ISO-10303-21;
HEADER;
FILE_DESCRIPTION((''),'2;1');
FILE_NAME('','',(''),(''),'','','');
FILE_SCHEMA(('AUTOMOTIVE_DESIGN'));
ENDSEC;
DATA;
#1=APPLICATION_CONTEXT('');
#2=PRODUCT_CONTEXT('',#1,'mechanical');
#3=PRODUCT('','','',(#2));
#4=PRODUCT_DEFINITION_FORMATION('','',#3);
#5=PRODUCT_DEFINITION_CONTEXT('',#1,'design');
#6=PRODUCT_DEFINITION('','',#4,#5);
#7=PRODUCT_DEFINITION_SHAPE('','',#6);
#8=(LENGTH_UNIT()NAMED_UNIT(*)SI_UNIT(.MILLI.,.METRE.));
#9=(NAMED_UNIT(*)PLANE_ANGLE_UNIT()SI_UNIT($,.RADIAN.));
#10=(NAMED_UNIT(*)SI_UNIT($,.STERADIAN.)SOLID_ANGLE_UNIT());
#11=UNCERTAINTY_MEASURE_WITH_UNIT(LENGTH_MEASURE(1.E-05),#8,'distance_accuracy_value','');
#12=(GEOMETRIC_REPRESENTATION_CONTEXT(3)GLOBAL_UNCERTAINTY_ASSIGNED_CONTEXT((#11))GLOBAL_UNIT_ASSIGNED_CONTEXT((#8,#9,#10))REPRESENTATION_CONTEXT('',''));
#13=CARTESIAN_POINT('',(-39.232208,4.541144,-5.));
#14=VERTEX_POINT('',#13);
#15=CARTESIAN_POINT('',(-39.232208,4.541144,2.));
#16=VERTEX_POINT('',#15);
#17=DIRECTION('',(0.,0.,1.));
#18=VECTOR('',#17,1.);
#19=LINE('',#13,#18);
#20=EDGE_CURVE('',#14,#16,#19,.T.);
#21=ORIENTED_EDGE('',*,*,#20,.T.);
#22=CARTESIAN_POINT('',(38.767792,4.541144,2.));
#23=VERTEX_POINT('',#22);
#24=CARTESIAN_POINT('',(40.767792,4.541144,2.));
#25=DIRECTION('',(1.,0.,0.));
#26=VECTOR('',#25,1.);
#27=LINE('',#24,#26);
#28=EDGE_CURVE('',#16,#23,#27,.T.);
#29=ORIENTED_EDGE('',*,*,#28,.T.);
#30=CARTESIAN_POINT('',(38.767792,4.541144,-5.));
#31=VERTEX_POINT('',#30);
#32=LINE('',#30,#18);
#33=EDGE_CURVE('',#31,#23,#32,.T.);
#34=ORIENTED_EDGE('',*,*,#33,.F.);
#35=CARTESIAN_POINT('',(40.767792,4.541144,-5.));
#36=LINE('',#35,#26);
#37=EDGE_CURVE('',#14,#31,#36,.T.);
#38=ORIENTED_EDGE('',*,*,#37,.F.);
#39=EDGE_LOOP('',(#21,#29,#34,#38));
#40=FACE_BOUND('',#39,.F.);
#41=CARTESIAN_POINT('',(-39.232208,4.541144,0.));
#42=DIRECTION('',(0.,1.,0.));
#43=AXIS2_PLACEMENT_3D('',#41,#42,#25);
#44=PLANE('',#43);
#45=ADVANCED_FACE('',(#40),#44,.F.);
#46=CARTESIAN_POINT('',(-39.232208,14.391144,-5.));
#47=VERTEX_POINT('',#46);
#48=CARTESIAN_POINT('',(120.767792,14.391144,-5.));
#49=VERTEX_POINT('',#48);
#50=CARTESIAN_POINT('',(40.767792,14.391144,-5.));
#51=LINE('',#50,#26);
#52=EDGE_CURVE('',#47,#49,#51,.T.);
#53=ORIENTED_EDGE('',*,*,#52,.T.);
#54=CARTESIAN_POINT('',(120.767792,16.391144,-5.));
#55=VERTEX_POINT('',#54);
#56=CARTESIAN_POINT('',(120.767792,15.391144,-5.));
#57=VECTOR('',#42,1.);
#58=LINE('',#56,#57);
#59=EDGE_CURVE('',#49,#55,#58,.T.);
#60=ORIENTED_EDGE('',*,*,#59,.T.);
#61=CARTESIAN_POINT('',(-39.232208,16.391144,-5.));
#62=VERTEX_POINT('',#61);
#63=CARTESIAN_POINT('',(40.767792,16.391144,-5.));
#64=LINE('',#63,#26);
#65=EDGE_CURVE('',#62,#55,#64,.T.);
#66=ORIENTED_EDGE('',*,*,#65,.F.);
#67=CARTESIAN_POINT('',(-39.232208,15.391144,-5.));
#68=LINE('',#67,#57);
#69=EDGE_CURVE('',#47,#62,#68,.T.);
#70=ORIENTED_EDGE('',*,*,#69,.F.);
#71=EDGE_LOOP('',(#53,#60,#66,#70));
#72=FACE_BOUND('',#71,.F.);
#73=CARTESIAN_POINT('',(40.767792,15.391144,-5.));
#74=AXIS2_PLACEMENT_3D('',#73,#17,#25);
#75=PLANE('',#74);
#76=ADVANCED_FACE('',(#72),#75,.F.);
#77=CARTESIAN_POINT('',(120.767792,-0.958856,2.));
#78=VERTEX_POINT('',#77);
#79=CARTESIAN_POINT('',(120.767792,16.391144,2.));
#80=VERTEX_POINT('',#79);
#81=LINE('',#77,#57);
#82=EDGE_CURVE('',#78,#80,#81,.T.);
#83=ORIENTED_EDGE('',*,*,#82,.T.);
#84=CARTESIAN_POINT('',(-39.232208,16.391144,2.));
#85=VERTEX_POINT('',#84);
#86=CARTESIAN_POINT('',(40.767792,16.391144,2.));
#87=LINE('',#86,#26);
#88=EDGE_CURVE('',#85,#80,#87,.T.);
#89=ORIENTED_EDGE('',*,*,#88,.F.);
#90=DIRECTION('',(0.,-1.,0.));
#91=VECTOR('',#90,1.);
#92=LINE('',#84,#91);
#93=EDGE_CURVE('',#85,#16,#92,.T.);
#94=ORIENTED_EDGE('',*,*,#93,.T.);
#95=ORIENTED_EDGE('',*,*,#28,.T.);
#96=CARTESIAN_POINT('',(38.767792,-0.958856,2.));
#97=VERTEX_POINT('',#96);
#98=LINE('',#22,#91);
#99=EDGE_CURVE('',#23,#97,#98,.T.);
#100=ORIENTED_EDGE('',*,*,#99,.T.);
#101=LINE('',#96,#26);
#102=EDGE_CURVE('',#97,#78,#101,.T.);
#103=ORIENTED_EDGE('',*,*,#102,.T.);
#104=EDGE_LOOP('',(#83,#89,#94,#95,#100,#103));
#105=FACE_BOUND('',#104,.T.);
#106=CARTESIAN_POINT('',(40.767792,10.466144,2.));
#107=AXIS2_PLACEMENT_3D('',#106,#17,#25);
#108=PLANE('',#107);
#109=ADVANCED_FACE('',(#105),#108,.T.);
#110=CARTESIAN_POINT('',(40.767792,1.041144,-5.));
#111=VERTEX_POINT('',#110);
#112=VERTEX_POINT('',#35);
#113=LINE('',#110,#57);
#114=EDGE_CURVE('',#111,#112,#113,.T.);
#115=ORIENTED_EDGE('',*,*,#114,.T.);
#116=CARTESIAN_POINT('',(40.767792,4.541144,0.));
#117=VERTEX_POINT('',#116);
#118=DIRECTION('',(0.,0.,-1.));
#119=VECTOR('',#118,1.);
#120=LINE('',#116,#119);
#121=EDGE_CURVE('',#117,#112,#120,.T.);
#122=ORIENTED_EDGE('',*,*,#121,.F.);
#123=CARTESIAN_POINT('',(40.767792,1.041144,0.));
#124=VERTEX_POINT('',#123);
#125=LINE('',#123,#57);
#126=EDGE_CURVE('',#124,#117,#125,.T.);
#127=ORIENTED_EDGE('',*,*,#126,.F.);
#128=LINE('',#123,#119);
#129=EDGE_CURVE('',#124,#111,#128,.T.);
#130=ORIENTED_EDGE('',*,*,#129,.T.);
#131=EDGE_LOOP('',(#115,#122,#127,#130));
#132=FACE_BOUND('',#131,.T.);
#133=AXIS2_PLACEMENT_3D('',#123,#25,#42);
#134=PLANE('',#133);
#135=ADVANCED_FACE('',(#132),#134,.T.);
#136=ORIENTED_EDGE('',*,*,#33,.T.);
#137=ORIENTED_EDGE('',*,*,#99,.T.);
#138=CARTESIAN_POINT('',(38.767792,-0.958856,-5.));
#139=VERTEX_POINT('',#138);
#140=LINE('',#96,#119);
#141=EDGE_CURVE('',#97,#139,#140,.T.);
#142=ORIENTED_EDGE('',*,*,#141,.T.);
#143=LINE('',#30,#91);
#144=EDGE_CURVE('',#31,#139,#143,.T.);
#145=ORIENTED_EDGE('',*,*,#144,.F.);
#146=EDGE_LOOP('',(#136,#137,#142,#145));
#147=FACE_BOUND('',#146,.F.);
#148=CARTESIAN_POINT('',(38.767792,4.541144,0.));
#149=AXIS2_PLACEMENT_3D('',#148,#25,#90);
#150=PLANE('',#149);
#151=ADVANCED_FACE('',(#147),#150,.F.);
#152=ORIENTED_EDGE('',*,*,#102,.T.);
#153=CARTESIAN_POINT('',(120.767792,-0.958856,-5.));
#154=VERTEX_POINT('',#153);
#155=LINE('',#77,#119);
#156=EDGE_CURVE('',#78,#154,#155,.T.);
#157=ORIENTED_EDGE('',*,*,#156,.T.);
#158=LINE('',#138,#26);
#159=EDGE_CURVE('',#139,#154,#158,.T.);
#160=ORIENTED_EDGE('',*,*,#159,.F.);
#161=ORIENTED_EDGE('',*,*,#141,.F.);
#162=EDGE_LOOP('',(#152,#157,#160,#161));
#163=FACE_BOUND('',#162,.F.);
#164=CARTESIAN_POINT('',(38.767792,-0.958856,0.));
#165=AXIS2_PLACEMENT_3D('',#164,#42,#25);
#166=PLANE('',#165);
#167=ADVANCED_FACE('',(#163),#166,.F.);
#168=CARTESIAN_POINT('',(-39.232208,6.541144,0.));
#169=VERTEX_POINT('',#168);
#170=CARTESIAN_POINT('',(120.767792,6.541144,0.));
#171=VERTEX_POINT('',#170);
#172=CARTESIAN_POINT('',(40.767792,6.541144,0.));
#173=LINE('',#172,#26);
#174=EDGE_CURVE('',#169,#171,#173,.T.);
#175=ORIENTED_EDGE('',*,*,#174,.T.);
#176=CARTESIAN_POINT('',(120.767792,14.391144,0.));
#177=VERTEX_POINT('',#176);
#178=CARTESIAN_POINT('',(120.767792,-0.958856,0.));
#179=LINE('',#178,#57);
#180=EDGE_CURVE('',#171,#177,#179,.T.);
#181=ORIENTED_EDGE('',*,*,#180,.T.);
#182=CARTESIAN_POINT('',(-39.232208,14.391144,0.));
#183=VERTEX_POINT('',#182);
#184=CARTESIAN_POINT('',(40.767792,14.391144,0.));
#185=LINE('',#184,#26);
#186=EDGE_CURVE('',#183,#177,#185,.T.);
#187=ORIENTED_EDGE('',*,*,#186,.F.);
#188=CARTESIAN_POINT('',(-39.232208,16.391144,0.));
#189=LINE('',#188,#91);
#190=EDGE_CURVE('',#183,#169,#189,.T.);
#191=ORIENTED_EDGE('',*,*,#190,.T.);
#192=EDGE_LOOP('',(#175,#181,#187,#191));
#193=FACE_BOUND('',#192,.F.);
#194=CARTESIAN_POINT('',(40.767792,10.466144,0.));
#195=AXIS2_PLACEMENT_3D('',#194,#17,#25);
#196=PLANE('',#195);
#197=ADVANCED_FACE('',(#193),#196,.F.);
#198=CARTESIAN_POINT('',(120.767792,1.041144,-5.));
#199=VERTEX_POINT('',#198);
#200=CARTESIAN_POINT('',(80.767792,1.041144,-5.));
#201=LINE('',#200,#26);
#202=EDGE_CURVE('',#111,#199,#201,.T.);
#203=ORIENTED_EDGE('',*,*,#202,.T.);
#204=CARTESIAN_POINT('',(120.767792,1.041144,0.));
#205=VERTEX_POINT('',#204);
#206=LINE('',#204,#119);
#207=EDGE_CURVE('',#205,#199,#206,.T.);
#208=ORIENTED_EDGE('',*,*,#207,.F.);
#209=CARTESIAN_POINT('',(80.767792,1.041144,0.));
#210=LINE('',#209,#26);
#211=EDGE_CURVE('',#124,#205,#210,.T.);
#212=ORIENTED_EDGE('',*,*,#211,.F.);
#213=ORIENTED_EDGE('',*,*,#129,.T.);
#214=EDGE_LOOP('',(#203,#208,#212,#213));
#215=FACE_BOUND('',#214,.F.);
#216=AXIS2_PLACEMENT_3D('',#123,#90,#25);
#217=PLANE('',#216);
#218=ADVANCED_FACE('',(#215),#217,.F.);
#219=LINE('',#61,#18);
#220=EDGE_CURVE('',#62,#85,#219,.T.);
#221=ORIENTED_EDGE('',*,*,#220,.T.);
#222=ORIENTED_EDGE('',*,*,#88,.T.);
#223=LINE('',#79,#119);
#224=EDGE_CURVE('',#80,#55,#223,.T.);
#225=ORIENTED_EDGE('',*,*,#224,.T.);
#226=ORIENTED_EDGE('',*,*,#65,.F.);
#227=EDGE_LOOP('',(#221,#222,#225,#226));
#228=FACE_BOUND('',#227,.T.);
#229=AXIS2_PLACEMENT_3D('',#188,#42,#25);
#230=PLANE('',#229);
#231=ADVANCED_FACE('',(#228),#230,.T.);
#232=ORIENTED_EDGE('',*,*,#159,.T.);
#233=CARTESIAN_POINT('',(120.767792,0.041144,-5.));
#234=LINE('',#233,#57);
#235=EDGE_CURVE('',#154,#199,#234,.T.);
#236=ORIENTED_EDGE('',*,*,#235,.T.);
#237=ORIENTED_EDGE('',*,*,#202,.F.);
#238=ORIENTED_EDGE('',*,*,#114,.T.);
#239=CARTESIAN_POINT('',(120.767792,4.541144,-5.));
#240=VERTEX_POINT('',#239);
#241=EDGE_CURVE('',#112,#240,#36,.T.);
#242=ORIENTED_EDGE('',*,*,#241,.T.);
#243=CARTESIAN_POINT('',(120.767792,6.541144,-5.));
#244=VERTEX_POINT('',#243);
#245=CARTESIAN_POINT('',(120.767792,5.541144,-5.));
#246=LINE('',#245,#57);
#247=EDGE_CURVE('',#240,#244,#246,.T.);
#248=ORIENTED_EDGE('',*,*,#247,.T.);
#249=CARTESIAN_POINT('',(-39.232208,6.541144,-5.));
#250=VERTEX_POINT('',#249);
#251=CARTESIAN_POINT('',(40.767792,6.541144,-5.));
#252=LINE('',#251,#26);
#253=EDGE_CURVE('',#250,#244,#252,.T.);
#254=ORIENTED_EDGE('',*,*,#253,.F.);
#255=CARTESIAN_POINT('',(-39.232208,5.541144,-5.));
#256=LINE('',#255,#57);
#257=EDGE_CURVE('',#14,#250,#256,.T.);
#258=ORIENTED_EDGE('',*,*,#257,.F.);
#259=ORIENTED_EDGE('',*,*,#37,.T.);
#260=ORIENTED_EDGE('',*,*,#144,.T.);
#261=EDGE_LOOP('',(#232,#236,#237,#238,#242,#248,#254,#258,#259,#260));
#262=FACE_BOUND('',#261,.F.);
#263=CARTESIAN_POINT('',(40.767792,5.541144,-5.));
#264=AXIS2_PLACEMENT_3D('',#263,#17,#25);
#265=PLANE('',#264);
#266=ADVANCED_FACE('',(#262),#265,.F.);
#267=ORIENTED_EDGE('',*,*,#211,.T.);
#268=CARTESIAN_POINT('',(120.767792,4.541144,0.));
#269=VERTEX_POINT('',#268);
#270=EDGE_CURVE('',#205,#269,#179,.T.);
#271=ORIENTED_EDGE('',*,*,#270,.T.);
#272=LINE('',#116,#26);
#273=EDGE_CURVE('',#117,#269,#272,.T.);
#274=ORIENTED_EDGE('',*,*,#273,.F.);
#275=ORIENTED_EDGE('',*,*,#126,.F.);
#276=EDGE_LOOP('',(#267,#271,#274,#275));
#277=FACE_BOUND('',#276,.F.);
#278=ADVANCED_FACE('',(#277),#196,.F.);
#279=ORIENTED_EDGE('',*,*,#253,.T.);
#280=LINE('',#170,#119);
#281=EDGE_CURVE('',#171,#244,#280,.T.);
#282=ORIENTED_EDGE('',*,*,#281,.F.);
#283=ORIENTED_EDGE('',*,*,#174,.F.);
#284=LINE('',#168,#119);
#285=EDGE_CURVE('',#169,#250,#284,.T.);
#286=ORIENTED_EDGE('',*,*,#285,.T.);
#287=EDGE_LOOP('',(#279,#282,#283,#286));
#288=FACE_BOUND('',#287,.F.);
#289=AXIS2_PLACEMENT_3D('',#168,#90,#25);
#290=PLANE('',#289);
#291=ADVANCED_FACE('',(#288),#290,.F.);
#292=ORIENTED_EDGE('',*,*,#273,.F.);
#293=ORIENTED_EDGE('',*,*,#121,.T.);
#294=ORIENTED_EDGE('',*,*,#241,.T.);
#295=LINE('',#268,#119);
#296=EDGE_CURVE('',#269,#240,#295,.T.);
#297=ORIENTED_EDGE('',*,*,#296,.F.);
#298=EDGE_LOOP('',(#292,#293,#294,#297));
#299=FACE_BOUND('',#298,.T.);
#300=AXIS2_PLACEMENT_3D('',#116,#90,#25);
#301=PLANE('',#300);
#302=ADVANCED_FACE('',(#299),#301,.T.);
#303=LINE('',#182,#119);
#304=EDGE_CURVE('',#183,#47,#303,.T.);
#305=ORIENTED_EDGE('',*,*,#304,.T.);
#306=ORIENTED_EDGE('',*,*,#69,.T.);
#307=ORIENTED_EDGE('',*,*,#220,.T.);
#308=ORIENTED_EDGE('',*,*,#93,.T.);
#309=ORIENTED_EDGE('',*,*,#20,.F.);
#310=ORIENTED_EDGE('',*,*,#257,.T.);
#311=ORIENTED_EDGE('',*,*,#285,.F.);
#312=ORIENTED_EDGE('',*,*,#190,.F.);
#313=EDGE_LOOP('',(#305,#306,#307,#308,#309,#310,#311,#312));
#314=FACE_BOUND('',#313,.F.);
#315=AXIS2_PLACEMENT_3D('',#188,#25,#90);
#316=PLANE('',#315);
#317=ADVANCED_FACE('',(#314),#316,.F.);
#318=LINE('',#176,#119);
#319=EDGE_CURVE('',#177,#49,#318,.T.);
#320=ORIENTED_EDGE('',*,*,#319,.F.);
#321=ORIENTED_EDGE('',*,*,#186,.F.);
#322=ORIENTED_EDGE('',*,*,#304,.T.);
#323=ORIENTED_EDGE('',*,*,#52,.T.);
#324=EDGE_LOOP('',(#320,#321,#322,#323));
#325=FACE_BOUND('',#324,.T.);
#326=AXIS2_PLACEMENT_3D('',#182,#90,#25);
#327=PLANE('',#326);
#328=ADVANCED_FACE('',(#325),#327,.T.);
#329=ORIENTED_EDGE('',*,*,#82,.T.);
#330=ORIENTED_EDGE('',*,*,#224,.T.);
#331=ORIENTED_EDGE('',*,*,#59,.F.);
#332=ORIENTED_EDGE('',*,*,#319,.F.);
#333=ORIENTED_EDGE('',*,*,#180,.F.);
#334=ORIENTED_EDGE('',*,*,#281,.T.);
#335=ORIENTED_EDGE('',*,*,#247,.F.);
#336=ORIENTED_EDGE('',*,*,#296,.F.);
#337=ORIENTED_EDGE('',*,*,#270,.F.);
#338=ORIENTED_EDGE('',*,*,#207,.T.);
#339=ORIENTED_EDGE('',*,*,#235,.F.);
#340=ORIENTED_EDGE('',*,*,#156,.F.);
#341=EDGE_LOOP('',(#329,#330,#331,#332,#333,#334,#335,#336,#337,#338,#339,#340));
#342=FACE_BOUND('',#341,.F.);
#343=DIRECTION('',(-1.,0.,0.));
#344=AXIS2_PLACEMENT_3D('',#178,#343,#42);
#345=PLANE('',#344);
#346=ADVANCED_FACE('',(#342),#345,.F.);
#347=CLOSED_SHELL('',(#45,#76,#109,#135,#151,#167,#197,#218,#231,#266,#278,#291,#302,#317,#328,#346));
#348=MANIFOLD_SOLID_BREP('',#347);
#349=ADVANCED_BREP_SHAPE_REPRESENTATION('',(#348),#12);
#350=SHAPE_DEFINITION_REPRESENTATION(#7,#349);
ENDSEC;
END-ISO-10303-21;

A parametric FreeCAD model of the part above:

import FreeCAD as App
import Part
import Sketcher
from FreeCAD import Vector

doc = App.newDocument("Part")
body = doc.addObject("PartDesign::Body", "Body")
body.AllowCompound = True

# Sketch on XY plane
sketch1 = body.newObject("Sketcher::SketchObject", "Sketch")
sketch1.AttachmentSupport = (doc.getObject("XY_Plane"), [""])
sketch1.MapMode = "FlatFace"
sketch1.addGeometry([
    Part.LineSegment(Vector(-39.2, 16.4, 0), Vector(-39.2, 14.4, 0)),  # 0
    Part.LineSegment(Vector(-39.2, 14.4, 0), Vector(120.8, 14.4, 0)),  # 1
    Part.LineSegment(Vector(120.8, 14.4, 0), Vector(120.8, 16.4, 0)),  # 2
    Part.LineSegment(Vector(120.8, 16.4, 0), Vector(-39.2, 16.4, 0)),  # 3
    Part.LineSegment(Vector(-39.2, 6.5, 0), Vector(-39.2, 4.5, 0)),  # 4
    Part.LineSegment(Vector(-39.2, 4.5, 0), Vector(38.8, 4.5, 0)),  # 5
    Part.LineSegment(Vector(38.8, 4.5, 0), Vector(38.8, -1, 0)),  # 6
    Part.LineSegment(Vector(38.8, -1, 0), Vector(120.8, -1, 0)),  # 7
    Part.LineSegment(Vector(120.8, -1, 0), Vector(120.8, 1, 0)),  # 8
    Part.LineSegment(Vector(120.8, 1, 0), Vector(40.8, 1, 0)),  # 9
    Part.LineSegment(Vector(40.8, 1, 0), Vector(40.8, 4.5, 0)),  # 10
    Part.LineSegment(Vector(40.8, 4.5, 0), Vector(120.8, 4.5, 0)),  # 11
    Part.LineSegment(Vector(120.8, 4.5, 0), Vector(120.8, 6.5, 0)),  # 12
    Part.LineSegment(Vector(120.8, 6.5, 0), Vector(-39.2, 6.5, 0)),  # 13
], False)
sketch1.addConstraint([
    Sketcher.Constraint("Coincident", 0, 2, 1, 1),
    Sketcher.Constraint("Coincident", 1, 2, 2, 1),
    Sketcher.Constraint("Coincident", 2, 2, 3, 1),
    Sketcher.Constraint("Coincident", 3, 2, 0, 1),
    Sketcher.Constraint("Coincident", 4, 2, 5, 1),
    Sketcher.Constraint("Coincident", 5, 2, 6, 1),
    Sketcher.Constraint("Coincident", 6, 2, 7, 1),
    Sketcher.Constraint("Coincident", 7, 2, 8, 1),
    Sketcher.Constraint("Coincident", 8, 2, 9, 1),
    Sketcher.Constraint("Coincident", 9, 2, 10, 1),
    Sketcher.Constraint("Coincident", 10, 2, 11, 1),
    Sketcher.Constraint("Coincident", 11, 2, 12, 1),
    Sketcher.Constraint("Coincident", 12, 2, 13, 1),
    Sketcher.Constraint("Coincident", 13, 2, 4, 1),
    Sketcher.Constraint("Vertical", 0),
    Sketcher.Constraint("Horizontal", 1),
    Sketcher.Constraint("Vertical", 2),
    Sketcher.Constraint("Horizontal", 3),
    Sketcher.Constraint("Vertical", 4),
    Sketcher.Constraint("Horizontal", 5),
    Sketcher.Constraint("Vertical", 6),
    Sketcher.Constraint("Horizontal", 7),
    Sketcher.Constraint("Vertical", 8),
    Sketcher.Constraint("Horizontal", 9),
    Sketcher.Constraint("Vertical", 10),
    Sketcher.Constraint("Horizontal", 11),
    Sketcher.Constraint("Vertical", 12),
    Sketcher.Constraint("Horizontal", 13),
    Sketcher.Constraint("Horizontal", 5, 2, 10, 2),
    Sketcher.Constraint("Vertical", 3, 2, 4, 2),
    Sketcher.Constraint("Vertical", 2, 2, 7, 2),
    Sketcher.Constraint("Vertical", 8, 2, 11, 2),
    Sketcher.Constraint("Equal", 2, 4),
    Sketcher.Constraint("Equal", 4, 8),
    Sketcher.Constraint("DistanceX", 1, 1, 1, 2, 160.0),
    Sketcher.Constraint("DistanceX", 5, 1, 5, 2, 78.0),
    Sketcher.Constraint("DistanceX", 9, 2, 9, 1, 80.0),
    Sketcher.Constraint("DistanceY", 0, 2, 0, 1, 2.0),
    Sketcher.Constraint("DistanceY", 6, 2, 6, 1, 5.5),
    Sketcher.Constraint("DistanceY", 4, 2, 0, 2, 9.85),
    Sketcher.Constraint("DistanceX", 0, 2, -1, 1, 39.232208),
    Sketcher.Constraint("DistanceY", -1, 1, 0, 2, 14.391144),
])
pad1 = body.newObject("PartDesign::Pad", "Pad")
pad1.Profile = sketch1
pad1.Length = 5
pad1.Reversed = True

# Sketch on XY plane
sketch2 = body.newObject("Sketcher::SketchObject", "Sketch001")
sketch2.AttachmentSupport = (doc.getObject("XY_Plane"), [""])
sketch2.MapMode = "FlatFace"
sketch2.addGeometry([
    Part.LineSegment(Vector(121, 16, 0), Vector(-39, 16, 0)),  # 0
    Part.LineSegment(Vector(-39, 16, 0), Vector(-39, 5, 0)),  # 1
    Part.LineSegment(Vector(-39, 5, 0), Vector(39, 5, 0)),  # 2
    Part.LineSegment(Vector(39, 5, 0), Vector(39, -1, 0)),  # 3
    Part.LineSegment(Vector(39, -1, 0), Vector(121, -1, 0)),  # 4
    Part.LineSegment(Vector(121, -1, 0), Vector(121, 16, 0)),  # 5
], False)
sketch2.addConstraint([
    Sketcher.Constraint("Coincident", 0, 2, 1, 1),
    Sketcher.Constraint("Coincident", 1, 2, 2, 1),
    Sketcher.Constraint("Coincident", 2, 2, 3, 1),
    Sketcher.Constraint("Coincident", 3, 2, 4, 1),
    Sketcher.Constraint("Coincident", 4, 2, 5, 1),
    Sketcher.Constraint("Coincident", 5, 2, 0, 1),
    Sketcher.Constraint("Horizontal", 0),
    Sketcher.Constraint("Vertical", 1),
    Sketcher.Constraint("Horizontal", 2),
    Sketcher.Constraint("Vertical", 3),
    Sketcher.Constraint("Horizontal", 4),
    Sketcher.Constraint("Vertical", 5),
    Sketcher.Constraint("DistanceX", 0, 2, 0, 1, 160.0),
    Sketcher.Constraint("DistanceX", 2, 1, 2, 2, 78.0),
    Sketcher.Constraint("DistanceY", 3, 2, 3, 1, 5.5),
    Sketcher.Constraint("DistanceY", 1, 2, 1, 1, 11.85),
    Sketcher.Constraint("DistanceX", 0, 2, -1, 1, 39.232208),
    Sketcher.Constraint("DistanceY", -1, 1, 0, 2, 16.391144),
])
pad2 = body.newObject("PartDesign::Pad", "Pad001")
pad2.Profile = sketch2
pad2.Length = 2

doc.recompute()
